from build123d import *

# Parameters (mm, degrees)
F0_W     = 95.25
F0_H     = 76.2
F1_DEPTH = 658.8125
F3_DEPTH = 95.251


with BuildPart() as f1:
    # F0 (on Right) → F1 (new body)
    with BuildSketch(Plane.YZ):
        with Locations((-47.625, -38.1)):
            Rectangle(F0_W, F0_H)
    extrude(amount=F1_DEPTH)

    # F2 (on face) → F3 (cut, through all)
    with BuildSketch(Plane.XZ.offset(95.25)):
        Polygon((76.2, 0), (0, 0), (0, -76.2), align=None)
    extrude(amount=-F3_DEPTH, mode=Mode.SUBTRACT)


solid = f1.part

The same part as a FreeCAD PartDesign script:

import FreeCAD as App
import Part
import Sketcher
from FreeCAD import Vector
Q = App.Units.Quantity

doc = App.newDocument("Part")
params = doc.addObject("Spreadsheet::Sheet", "Params")
for row, (alias, value) in enumerate([
    ("sketch1_height", "3 in"),
    ("sketch1_width", "3.75 in"),
    ("pad1_length", "25.9375 in"),
    ("sketch2_width", "3 in"),
], start=1):
    params.set(f"A{row}", alias)
    params.set(f"B{row}", "=" + value)
    params.setAlias(f"B{row}", alias)

body = doc.addObject("PartDesign::Body", "Body")

# Sketch on YZ plane
sketch1 = body.newObject("Sketcher::SketchObject", "Sketch")
sketch1.AttachmentSupport = (doc.getObject("YZ_Plane"), [""])
sketch1.MapMode = "FlatFace"
sketch1.addGeometry([
    Part.LineSegment(Vector(-95.25, 0, 0), Vector(-95.25, -76.2, 0)),
    Part.LineSegment(Vector(-95.25, -76.2, 0), Vector(0, -76.2, 0)),
    Part.LineSegment(Vector(0, -76.2, 0), Vector(0, 0, 0)),
    Part.LineSegment(Vector(0, 0, 0), Vector(-95.25, 0, 0)),
], False)
sketch1.addConstraint([
    Sketcher.Constraint("Coincident", 0, 2, 1, 1),
    Sketcher.Constraint("Coincident", 1, 2, 2, 1),
    Sketcher.Constraint("Coincident", 2, 2, 3, 1),
    Sketcher.Constraint("Coincident", 3, 2, 0, 1),
    Sketcher.Constraint("Vertical", 0),
    Sketcher.Constraint("Horizontal", 1),
    Sketcher.Constraint("Vertical", 2),
    Sketcher.Constraint("Horizontal", 3),
    Sketcher.Constraint("Coincident", 2, 2, -1, 1),
    Sketcher.Constraint("DistanceY", 0, 2, 0, 1, Q("3 in")),
    Sketcher.Constraint("DistanceX", 1, 1, 1, 2, Q("3.75 in")),
])
sketch1.setExpression("Constraints[9]", "Params.sketch1_height")
sketch1.setExpression("Constraints[10]", "Params.sketch1_width")
pad1 = body.newObject("PartDesign::Pad", "Pad")
pad1.Profile = sketch1
pad1.setExpression("Length", "Params.pad1_length")

# Sketch on XZ plane
sketch2 = body.newObject("Sketcher::SketchObject", "Sketch001")
sketch2.AttachmentSupport = (doc.getObject("XZ_Plane"), [""])
sketch2.MapMode = "FlatFace"
sketch2.AttachmentOffset = App.Placement(Vector(0, 0, 3.75 * 25.4), App.Rotation())
sketch2.addGeometry([
    Part.LineSegment(Vector(76.2, 0, 0), Vector(0, 0, 0)),
    Part.LineSegment(Vector(0, 0, 0), Vector(0, -76.2, 0)),
    Part.LineSegment(Vector(0, -76.2, 0), Vector(76.2, 0, 0)),
], False)
sketch2.addConstraint([
    Sketcher.Constraint("Coincident", 0, 2, 1, 1),
    Sketcher.Constraint("Coincident", 1, 2, 2, 1),
    Sketcher.Constraint("Coincident", 2, 2, 0, 1),
    Sketcher.Constraint("Horizontal", 0),
    Sketcher.Constraint("Vertical", 1),
    Sketcher.Constraint("Coincident", 0, 2, -1, 1),
    Sketcher.Constraint("Equal", 0, 1),
    Sketcher.Constraint("DistanceX", 0, 2, 0, 1, Q("3 in")),
])
sketch2.setExpression("Constraints[7]", "Params.sketch2_width")
pocket1 = body.newObject("PartDesign::Pocket", "Pocket")
pocket1.Profile = sketch2
pocket1.Type = "ThroughAll"

doc.recompute()
